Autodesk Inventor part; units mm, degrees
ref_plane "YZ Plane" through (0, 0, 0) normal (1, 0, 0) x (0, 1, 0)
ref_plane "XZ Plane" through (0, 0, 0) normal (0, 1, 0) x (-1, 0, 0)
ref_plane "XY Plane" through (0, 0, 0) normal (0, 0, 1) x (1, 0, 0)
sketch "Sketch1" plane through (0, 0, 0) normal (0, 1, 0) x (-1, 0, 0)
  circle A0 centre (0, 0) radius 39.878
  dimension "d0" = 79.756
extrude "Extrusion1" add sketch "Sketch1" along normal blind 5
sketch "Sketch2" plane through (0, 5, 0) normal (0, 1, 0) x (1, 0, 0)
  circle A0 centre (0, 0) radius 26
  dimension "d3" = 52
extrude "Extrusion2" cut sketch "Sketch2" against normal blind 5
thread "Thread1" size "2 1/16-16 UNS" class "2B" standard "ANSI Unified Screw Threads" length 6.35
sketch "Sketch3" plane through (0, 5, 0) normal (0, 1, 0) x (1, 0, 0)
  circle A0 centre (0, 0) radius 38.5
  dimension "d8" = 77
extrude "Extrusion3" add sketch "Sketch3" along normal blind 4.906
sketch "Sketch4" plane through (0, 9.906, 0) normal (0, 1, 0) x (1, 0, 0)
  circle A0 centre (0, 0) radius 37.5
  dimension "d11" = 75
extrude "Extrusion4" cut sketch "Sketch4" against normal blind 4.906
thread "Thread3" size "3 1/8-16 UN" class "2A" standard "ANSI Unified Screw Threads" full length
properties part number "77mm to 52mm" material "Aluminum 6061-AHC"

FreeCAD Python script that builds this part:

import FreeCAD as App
import Part
import Sketcher

doc = App.newDocument("Part")
body = doc.addObject("PartDesign::Body", "Body")

sketch1 = body.newObject("Sketcher::SketchObject", "Sketch")
sketch1.AttachmentSupport = (doc.getObject("XZ_Plane"), [""])
sketch1.MapMode = "FlatFace"
sketch1.addGeometry(Part.Circle(App.Vector(0, 0, 0), App.Vector(0, 0, 1), 40), False)
sketch1.addConstraint([
    Sketcher.Constraint("Coincident", 0, 3, -1, 1),
    Sketcher.Constraint("Diameter", 0, 79.756),
])
pad1 = body.newObject("PartDesign::Pad", "Pad")
pad1.Profile = sketch1
pad1.Length = 5
pad1.Reversed = True

sketch2 = body.newObject("Sketcher::SketchObject", "Sketch001")
sketch2.AttachmentSupport = (doc.getObject("XZ_Plane"), [""])
sketch2.MapMode = "FlatFace"
sketch2.AttachmentOffset = App.Placement(App.Vector(0, 0, -5), App.Rotation())
sketch2.addGeometry(Part.Circle(App.Vector(0, 0, 0), App.Vector(0, 0, 1), 26), False)
sketch2.addConstraint([
    Sketcher.Constraint("Coincident", 0, 3, -1, 1),
    Sketcher.Constraint("Diameter", 0, 52.0),
])
pocket1 = body.newObject("PartDesign::Pocket", "Pocket")
pocket1.Profile = sketch2
pocket1.Length = 5
pocket1.Reversed = True

sketch3 = body.newObject("Sketcher::SketchObject", "Sketch002")
sketch3.AttachmentSupport = (doc.getObject("XZ_Plane"), [""])
sketch3.MapMode = "FlatFace"
sketch3.AttachmentOffset = App.Placement(App.Vector(0, 0, -5), App.Rotation())
sketch3.addGeometry(Part.Circle(App.Vector(0, 0, 0), App.Vector(0, 0, 1), 38), False)
sketch3.addConstraint([
    Sketcher.Constraint("Coincident", 0, 3, -1, 1),
    Sketcher.Constraint("Diameter", 0, 77.0),
])
pad2 = body.newObject("PartDesign::Pad", "Pad001")
pad2.Profile = sketch3
pad2.Length = 4.906
pad2.Reversed = True

sketch4 = body.newObject("Sketcher::SketchObject", "Sketch003")
sketch4.AttachmentSupport = (doc.getObject("XZ_Plane"), [""])
sketch4.MapMode = "FlatFace"
sketch4.AttachmentOffset = App.Placement(App.Vector(0, 0, -9.906), App.Rotation())
sketch4.addGeometry(Part.Circle(App.Vector(0, 0, 0), App.Vector(0, 0, 1), 38), False)
sketch4.addConstraint([
    Sketcher.Constraint("Coincident", 0, 3, -1, 1),
    Sketcher.Constraint("Diameter", 0, 75.0),
])
pocket2 = body.newObject("PartDesign::Pocket", "Pocket001")
pocket2.Profile = sketch4
pocket2.Length = 4.906
pocket2.Reversed = True

doc.recompute()
